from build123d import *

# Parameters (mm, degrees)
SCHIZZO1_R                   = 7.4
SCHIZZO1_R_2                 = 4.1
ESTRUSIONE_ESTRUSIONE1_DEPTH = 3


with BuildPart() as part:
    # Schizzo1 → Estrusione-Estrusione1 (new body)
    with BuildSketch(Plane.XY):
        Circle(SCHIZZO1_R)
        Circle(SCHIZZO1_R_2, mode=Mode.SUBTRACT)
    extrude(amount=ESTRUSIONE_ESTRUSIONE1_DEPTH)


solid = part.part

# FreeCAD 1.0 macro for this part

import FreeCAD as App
import Part
import Sketcher

doc = App.newDocument("Part")
params = doc.addObject("Spreadsheet::Sheet", "Params")
for row, (alias, value) in enumerate([
    ("sketch1_diameter", "14.8 mm"),
    ("sketch1_diameter2", "8.2 mm"),
    ("pad1_length", "3 mm"),
], start=1):
    params.set(f"A{row}", alias)
    params.set(f"B{row}", "=" + value)
    params.setAlias(f"B{row}", alias)

body = doc.addObject("PartDesign::Body", "Body")

# Sketch on XY plane
sketch1 = body.newObject("Sketcher::SketchObject", "Sketch")
sketch1.AttachmentSupport = (doc.getObject("XY_Plane"), [""])
sketch1.MapMode = "FlatFace"
sketch1.addGeometry([
    Part.Circle(App.Vector(0, 0, 0), App.Vector(0, 0, 1), 7.4),
    Part.Circle(App.Vector(0, 0, 0), App.Vector(0, 0, 1), 4.1),
], False)
sketch1.addConstraint([
    Sketcher.Constraint("Coincident", 0, 3, -1, 1),
    Sketcher.Constraint("Coincident", 1, 3, -1, 1),
    Sketcher.Constraint("Diameter", 0, 14.8),
    Sketcher.Constraint("Diameter", 1, 8.2),
])
sketch1.setExpression("Constraints[2]", "Params.sketch1_diameter")
sketch1.setExpression("Constraints[3]", "Params.sketch1_diameter2")
pad1 = body.newObject("PartDesign::Pad", "Pad")
pad1.Profile = sketch1
pad1.setExpression("Length", "Params.pad1_length")

doc.recompute()
